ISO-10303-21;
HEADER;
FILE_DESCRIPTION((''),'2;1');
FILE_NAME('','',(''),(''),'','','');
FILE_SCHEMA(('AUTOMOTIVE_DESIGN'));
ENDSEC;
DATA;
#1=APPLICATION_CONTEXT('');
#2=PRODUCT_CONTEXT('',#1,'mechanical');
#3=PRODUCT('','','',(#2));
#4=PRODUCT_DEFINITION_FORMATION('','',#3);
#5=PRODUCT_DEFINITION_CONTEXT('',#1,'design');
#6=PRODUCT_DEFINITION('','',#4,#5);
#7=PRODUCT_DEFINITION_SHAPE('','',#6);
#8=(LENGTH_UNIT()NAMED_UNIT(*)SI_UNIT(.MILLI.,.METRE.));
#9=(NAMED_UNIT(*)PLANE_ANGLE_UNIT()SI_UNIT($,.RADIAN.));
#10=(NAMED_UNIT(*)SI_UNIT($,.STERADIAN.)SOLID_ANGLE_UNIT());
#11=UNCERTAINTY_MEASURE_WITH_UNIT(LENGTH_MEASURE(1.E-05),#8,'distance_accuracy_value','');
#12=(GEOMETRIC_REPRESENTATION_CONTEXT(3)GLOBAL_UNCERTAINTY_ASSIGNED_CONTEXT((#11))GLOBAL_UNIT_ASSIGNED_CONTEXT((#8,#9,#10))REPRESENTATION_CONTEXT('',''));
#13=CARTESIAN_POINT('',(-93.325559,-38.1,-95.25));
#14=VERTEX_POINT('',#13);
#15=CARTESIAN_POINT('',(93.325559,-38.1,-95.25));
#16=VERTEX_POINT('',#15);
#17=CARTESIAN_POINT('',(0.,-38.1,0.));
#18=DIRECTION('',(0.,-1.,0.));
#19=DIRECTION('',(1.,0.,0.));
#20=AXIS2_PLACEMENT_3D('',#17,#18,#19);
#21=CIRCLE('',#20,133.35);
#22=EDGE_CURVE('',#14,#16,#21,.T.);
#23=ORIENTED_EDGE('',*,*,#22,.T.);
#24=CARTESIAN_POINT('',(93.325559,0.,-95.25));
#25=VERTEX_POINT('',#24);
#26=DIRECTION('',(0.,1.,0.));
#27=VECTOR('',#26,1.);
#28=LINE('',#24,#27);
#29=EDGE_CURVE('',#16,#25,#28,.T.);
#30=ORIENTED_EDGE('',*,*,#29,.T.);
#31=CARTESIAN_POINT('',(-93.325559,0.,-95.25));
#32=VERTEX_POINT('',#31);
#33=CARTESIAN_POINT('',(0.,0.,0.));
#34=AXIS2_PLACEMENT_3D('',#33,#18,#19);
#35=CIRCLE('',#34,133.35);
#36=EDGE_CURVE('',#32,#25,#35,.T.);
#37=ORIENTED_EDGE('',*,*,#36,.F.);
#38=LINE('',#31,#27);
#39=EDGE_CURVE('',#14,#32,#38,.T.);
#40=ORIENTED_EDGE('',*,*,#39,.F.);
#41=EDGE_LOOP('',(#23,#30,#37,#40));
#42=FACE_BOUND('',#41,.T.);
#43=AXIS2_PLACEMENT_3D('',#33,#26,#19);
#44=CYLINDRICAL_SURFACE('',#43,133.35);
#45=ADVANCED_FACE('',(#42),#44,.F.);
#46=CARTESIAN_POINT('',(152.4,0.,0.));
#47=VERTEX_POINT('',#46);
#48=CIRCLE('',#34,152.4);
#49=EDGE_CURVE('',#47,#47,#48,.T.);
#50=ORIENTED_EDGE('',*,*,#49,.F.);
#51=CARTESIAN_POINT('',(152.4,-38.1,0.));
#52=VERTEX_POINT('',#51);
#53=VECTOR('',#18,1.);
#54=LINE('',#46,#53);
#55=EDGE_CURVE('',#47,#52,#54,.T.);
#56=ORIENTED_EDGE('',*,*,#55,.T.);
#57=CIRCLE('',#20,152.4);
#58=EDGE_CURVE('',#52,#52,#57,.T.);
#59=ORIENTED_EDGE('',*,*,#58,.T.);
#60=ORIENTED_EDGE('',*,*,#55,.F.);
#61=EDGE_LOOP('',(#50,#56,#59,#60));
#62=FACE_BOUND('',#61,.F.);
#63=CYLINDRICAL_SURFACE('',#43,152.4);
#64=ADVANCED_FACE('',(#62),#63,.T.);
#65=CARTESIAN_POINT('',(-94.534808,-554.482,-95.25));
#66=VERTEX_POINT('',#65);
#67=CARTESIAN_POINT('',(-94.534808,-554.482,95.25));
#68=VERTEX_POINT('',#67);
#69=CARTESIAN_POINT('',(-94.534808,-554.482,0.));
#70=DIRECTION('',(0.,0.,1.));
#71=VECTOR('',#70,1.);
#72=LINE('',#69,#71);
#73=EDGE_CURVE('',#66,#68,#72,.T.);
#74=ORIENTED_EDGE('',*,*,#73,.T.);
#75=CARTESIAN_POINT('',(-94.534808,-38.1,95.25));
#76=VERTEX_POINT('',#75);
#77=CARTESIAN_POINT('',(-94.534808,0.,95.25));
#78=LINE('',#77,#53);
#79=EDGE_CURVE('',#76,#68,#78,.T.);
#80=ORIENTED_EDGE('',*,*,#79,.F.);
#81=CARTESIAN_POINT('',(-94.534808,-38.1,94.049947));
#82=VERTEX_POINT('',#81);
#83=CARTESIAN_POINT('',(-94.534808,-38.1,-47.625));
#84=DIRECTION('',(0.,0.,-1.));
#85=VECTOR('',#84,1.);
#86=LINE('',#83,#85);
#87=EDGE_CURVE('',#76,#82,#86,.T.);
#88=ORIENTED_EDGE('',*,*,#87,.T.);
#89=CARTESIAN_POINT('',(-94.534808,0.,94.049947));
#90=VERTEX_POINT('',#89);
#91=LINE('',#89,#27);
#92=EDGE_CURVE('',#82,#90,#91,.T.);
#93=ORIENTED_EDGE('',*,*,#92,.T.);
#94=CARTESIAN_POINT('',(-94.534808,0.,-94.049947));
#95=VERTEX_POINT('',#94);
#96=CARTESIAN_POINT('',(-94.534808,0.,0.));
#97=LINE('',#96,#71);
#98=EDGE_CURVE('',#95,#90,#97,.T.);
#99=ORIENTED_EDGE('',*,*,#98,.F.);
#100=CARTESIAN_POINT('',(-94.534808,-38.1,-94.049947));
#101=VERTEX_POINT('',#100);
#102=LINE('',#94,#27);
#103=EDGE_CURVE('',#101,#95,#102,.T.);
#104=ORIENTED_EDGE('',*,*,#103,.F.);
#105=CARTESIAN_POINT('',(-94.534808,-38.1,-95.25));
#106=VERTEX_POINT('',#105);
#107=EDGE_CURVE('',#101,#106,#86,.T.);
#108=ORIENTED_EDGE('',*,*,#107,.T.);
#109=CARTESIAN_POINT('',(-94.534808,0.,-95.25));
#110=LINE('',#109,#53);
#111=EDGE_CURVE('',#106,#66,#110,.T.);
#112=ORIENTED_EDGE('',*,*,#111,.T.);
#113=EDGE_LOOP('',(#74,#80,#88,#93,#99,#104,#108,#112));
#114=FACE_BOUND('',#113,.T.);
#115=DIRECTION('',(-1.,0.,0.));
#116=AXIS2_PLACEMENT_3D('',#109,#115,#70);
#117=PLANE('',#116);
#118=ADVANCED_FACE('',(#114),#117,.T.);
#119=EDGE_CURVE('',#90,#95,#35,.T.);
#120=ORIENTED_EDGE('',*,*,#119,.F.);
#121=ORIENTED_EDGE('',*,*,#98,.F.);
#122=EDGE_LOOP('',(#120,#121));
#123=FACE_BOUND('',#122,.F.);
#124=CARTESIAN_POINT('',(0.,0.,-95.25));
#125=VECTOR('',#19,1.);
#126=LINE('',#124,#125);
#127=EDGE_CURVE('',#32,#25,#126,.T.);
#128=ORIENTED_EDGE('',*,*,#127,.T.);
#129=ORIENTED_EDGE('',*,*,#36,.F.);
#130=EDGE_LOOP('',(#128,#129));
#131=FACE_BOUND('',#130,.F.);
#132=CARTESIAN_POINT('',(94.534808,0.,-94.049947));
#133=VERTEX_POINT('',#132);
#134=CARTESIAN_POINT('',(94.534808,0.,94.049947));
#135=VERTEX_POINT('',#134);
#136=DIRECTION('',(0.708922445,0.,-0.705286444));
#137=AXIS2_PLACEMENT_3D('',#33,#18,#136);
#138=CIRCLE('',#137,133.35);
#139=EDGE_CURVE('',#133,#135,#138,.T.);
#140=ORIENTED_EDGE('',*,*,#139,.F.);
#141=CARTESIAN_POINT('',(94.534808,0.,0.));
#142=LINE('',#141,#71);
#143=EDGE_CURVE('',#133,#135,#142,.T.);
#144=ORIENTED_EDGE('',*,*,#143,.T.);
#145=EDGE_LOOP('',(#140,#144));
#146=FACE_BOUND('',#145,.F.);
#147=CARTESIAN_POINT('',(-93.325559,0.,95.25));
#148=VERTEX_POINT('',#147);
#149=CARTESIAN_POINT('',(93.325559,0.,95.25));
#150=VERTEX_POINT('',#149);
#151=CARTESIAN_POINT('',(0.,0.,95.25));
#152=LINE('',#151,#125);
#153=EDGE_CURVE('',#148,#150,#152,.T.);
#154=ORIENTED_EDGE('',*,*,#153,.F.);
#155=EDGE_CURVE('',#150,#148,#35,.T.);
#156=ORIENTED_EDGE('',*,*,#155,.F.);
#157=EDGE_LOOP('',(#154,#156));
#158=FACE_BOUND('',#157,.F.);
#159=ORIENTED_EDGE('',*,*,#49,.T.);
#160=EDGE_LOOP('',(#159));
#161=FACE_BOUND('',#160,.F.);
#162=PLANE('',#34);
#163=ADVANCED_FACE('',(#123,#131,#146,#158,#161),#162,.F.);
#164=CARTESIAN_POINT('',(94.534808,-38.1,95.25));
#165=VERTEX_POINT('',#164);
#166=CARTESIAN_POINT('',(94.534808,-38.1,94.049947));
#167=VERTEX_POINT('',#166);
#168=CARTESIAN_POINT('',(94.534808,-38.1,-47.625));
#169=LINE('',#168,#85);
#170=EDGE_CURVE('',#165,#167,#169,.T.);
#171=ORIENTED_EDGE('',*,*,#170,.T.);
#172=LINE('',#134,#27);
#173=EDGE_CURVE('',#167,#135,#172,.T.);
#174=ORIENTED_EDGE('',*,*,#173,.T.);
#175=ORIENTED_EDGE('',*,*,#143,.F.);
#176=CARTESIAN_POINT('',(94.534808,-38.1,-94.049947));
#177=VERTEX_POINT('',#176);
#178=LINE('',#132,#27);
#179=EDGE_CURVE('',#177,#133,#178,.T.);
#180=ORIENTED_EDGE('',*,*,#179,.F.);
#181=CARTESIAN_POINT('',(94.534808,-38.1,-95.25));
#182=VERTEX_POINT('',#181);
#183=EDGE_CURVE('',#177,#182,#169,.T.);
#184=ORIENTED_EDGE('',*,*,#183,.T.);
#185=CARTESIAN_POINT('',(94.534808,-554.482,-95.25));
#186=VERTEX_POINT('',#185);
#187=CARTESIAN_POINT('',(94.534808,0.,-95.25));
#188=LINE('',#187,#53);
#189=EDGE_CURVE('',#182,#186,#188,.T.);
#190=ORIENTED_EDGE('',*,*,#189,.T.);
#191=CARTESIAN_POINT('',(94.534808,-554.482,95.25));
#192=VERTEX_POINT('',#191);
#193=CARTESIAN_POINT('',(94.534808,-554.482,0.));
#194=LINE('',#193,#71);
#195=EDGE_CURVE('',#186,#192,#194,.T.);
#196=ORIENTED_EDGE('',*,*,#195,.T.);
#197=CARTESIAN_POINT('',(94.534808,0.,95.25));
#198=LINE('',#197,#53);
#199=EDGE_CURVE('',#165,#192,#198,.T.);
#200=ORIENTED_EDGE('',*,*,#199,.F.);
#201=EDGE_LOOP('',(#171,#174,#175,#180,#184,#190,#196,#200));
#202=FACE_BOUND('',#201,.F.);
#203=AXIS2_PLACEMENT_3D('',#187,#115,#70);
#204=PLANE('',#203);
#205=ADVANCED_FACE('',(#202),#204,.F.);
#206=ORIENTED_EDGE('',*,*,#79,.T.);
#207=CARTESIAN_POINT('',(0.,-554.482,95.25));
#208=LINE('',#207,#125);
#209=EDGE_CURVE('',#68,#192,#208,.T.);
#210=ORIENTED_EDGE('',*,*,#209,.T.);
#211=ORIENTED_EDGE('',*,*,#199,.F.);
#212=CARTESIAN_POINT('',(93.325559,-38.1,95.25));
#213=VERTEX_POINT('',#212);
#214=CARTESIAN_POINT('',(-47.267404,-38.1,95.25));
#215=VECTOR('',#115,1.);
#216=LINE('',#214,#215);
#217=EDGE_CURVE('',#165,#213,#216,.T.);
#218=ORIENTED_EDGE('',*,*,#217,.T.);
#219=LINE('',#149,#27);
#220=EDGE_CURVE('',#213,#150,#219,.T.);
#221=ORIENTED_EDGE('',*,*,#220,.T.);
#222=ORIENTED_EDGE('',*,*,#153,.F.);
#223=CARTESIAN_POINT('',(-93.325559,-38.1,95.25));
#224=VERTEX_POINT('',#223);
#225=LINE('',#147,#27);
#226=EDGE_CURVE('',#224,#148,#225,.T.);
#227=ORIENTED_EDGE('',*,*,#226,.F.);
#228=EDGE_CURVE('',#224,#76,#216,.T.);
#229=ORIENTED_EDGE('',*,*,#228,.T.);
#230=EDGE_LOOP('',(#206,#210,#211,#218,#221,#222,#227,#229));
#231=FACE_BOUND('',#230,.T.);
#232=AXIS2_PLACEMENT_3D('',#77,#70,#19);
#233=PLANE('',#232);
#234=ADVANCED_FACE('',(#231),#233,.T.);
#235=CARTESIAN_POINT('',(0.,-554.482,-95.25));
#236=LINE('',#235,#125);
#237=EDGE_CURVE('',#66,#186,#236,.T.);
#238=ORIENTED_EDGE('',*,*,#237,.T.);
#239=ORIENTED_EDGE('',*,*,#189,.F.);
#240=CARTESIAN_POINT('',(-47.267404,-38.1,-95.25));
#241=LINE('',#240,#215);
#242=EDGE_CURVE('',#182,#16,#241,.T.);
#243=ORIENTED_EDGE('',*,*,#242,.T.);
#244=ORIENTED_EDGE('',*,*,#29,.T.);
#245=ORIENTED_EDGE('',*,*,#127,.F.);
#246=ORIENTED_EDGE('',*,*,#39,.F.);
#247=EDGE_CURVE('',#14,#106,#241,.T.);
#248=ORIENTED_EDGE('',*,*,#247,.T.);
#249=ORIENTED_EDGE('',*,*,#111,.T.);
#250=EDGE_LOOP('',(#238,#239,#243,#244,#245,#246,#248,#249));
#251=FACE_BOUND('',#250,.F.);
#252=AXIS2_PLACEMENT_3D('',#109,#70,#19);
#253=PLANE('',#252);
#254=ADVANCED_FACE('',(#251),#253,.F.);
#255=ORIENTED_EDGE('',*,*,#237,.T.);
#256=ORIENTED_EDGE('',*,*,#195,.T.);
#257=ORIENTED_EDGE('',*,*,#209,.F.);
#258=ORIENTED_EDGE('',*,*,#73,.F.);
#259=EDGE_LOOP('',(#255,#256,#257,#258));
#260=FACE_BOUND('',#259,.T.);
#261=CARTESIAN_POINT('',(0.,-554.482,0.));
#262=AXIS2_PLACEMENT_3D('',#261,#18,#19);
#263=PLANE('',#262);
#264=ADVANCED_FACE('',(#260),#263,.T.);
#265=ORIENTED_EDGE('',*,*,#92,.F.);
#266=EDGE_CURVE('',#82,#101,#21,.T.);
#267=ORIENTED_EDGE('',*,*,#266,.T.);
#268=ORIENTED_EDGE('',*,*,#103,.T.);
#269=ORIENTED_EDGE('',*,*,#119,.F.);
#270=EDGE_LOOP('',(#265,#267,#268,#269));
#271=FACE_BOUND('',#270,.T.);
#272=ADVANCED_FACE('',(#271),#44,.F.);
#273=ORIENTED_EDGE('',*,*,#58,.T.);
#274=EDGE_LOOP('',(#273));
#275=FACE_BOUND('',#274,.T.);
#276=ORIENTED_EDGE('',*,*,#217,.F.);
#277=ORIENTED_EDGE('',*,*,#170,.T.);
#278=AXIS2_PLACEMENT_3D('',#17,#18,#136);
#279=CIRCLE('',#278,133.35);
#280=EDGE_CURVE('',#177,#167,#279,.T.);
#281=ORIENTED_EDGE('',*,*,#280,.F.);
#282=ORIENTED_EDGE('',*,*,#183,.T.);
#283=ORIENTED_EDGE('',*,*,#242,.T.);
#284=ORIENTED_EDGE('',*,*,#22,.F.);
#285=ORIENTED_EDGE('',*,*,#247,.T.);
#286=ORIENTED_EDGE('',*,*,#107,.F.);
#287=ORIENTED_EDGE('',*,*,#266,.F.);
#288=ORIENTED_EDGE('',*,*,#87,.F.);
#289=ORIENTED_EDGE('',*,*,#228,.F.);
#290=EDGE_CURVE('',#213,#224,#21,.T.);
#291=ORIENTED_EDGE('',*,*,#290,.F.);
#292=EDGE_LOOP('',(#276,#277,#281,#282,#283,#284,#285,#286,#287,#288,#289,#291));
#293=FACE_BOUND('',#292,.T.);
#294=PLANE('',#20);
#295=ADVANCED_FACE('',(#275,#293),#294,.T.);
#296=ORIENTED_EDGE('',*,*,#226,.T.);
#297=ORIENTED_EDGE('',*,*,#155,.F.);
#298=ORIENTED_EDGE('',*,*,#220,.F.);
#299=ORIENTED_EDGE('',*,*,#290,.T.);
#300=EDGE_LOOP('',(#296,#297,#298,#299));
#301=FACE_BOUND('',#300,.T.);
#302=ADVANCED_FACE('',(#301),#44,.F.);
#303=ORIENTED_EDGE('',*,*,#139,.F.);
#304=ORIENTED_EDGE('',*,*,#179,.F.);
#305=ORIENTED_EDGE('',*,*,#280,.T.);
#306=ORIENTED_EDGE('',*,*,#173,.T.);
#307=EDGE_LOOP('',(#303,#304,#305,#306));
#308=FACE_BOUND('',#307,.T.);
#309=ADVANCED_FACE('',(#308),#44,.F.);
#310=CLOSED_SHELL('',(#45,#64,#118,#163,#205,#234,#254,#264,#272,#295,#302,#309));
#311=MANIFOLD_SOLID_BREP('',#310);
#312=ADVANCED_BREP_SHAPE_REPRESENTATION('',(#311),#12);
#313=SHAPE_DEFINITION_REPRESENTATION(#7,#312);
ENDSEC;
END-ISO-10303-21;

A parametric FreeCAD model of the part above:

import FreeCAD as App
import Part
import Sketcher

V = App.Vector
Q = App.Units.Quantity

doc = App.newDocument("Part")
params = doc.addObject("Spreadsheet::Sheet", "Params")
for row, (alias, value) in enumerate([
    ("sketch1_diameter", "12 in"),
    ("sketch1_diameter2", "10.5 in"),
    ("pad1_length", "1.5 in"),
    ("sketch2_height", "7.5 in"),
    ("pad2_length", "21.83 in"),
], start=1):
    params.set(f"A{row}", alias)
    params.set(f"B{row}", "=" + value)
    params.setAlias(f"B{row}", alias)

body = doc.addObject("PartDesign::Body", "Body")

sketch1 = doc.addObject("Sketcher::SketchObject", "Sketch")
body.addObject(sketch1)
sketch1.AttachmentSupport = (doc.XZ_Plane, [""])
sketch1.MapMode = "FlatFace"
sketch1.addGeometry(Part.Circle(V(0, 0, 0), V(0, 0, 1), 152), False)
sketch1.addGeometry(Part.Circle(V(0, 0, 0), V(0, 0, 1), 133), False)
sketch1.addConstraint(Sketcher.Constraint("Coincident", 0, 3, -1, 1))
sketch1.addConstraint(Sketcher.Constraint("Coincident", 1, 3, -1, 1))
sketch1.addConstraint(Sketcher.Constraint("Diameter", 0, Q("12 in")))
sketch1.addConstraint(Sketcher.Constraint("Diameter", 1, Q("10.5 in")))
sketch1.setExpression("Constraints[2]", "Params.sketch1_diameter")
sketch1.setExpression("Constraints[3]", "Params.sketch1_diameter2")
pad1 = doc.addObject("PartDesign::Pad", "Pad")
body.addObject(pad1)
pad1.Profile = sketch1
pad1.setExpression("Length", "Params.pad1_length")

sketch2 = doc.addObject("Sketcher::SketchObject", "Sketch001")
body.addObject(sketch2)
sketch2.AttachmentSupport = (doc.XZ_Plane, [""])
sketch2.MapMode = "FlatFace"
sketch2.addGeometry(Part.LineSegment(V(-95, 95, 0), V(-95, -95, 0)), False)
sketch2.addGeometry(Part.LineSegment(V(-95, -95, 0), V(95, -95, 0)), False)
sketch2.addGeometry(Part.LineSegment(V(95, -95, 0), V(95, 95, 0)), False)
sketch2.addGeometry(Part.LineSegment(V(95, 95, 0), V(-95, 95, 0)), False)
sketch2.addConstraint(Sketcher.Constraint("Coincident", 0, 2, 1, 1))
sketch2.addConstraint(Sketcher.Constraint("Coincident", 1, 2, 2, 1))
sketch2.addConstraint(Sketcher.Constraint("Coincident", 2, 2, 3, 1))
sketch2.addConstraint(Sketcher.Constraint("Coincident", 3, 2, 0, 1))
sketch2.addConstraint(Sketcher.Constraint("Vertical", 0))
sketch2.addConstraint(Sketcher.Constraint("Horizontal", 1))
sketch2.addConstraint(Sketcher.Constraint("Vertical", 2))
sketch2.addConstraint(Sketcher.Constraint("Horizontal", 3))
sketch2.addConstraint(Sketcher.Constraint("Symmetric", 0, 2, 2, 2, -1, 1))
sketch2.addConstraint(Sketcher.Constraint("DistanceY", 0, 2, 0, 1, Q("7.5 in")))
sketch2.addConstraint(Sketcher.Constraint("DistanceX", 1, 1, 1, 2, Q("189.069616 mm")))
sketch2.setExpression("Constraints[9]", "Params.sketch2_height")
pad2 = doc.addObject("PartDesign::Pad", "Pad001")
body.addObject(pad2)
pad2.Profile = sketch2
pad2.setExpression("Length", "Params.pad2_length")

doc.recompute()
